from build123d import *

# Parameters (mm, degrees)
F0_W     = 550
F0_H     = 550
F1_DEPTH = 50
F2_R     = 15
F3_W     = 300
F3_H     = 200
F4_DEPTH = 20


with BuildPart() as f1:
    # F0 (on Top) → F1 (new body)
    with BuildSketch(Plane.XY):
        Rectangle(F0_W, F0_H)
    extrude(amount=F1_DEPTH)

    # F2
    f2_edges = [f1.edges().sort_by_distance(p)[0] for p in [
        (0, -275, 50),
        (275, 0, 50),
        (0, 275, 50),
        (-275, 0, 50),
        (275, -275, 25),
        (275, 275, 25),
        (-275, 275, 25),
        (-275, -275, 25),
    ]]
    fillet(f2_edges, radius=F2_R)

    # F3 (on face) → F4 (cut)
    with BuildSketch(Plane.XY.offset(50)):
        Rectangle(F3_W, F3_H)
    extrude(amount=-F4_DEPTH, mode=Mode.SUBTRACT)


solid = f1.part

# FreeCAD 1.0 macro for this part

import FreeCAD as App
import Part
import Sketcher
from FreeCAD import Vector
Q = App.Units.Quantity


def edges_at(feature, points):
    """Names of the edges that pass closest to the given points."""
    edges = feature.Shape.Edges
    near = lambda p: min(range(len(edges)), key=lambda i: edges[i].distToShape(Part.Vertex(*p))[0])
    return sorted({f"Edge{near(p) + 1}" for p in points})

doc = App.newDocument("Part")
body = doc.addObject("PartDesign::Body", "Body")

# Sketch on XY plane
sketch1 = body.newObject("Sketcher::SketchObject", "Sketch")
sketch1.AttachmentSupport = (doc.getObject("XY_Plane"), [""])
sketch1.MapMode = "FlatFace"
sketch1.addGeometry(Part.LineSegment(Vector(-275, 275, 0), Vector(-275, -275, 0)), False)
sketch1.addGeometry(Part.LineSegment(Vector(-275, -275, 0), Vector(275, -275, 0)), False)
sketch1.addGeometry(Part.LineSegment(Vector(275, -275, 0), Vector(275, 275, 0)), False)
sketch1.addGeometry(Part.LineSegment(Vector(275, 275, 0), Vector(-275, 275, 0)), False)
sketch1.addConstraint(Sketcher.Constraint("Coincident", 0, 2, 1, 1))
sketch1.addConstraint(Sketcher.Constraint("Coincident", 1, 2, 2, 1))
sketch1.addConstraint(Sketcher.Constraint("Coincident", 2, 2, 3, 1))
sketch1.addConstraint(Sketcher.Constraint("Coincident", 3, 2, 0, 1))
sketch1.addConstraint(Sketcher.Constraint("Vertical", 0))
sketch1.addConstraint(Sketcher.Constraint("Horizontal", 1))
sketch1.addConstraint(Sketcher.Constraint("Vertical", 2))
sketch1.addConstraint(Sketcher.Constraint("Horizontal", 3))
sketch1.addConstraint(Sketcher.Constraint("Symmetric", 0, 2, 2, 2, -1, 1))
sketch1.addConstraint(Sketcher.Constraint("Equal", 3, 0))
sketch1.addConstraint(Sketcher.Constraint("DistanceX", 1, 1, 1, 2, Q("550 mm")))
pad1 = body.newObject("PartDesign::Pad", "Pad")
pad1.Profile = sketch1
pad1.Length = 50
doc.recompute()

fillet = body.newObject("PartDesign::Fillet", "Fillet")
fillet.Base = (pad1, edges_at(pad1, [
    (0, -275, 50),
    (275, 0, 50),
    (0, 275, 50),
    (-275, 0, 50),
    (275, -275, 25),
    (275, 275, 25),
    (-275, 275, 25),
    (-275, -275, 25),
]))
fillet.Radius = 15

# Sketch on XY plane
sketch2 = body.newObject("Sketcher::SketchObject", "Sketch001")
sketch2.AttachmentSupport = (doc.getObject("XY_Plane"), [""])
sketch2.MapMode = "FlatFace"
sketch2.AttachmentOffset = App.Placement(Vector(0, 0, 50), App.Rotation())
sketch2.addGeometry(Part.LineSegment(Vector(-150, 100, 0), Vector(-150, -100, 0)), False)
sketch2.addGeometry(Part.LineSegment(Vector(-150, -100, 0), Vector(150, -100, 0)), False)
sketch2.addGeometry(Part.LineSegment(Vector(150, -100, 0), Vector(150, 100, 0)), False)
sketch2.addGeometry(Part.LineSegment(Vector(150, 100, 0), Vector(-150, 100, 0)), False)
sketch2.addConstraint(Sketcher.Constraint("Coincident", 0, 2, 1, 1))
sketch2.addConstraint(Sketcher.Constraint("Coincident", 1, 2, 2, 1))
sketch2.addConstraint(Sketcher.Constraint("Coincident", 2, 2, 3, 1))
sketch2.addConstraint(Sketcher.Constraint("Coincident", 3, 2, 0, 1))
sketch2.addConstraint(Sketcher.Constraint("Vertical", 0))
sketch2.addConstraint(Sketcher.Constraint("Horizontal", 1))
sketch2.addConstraint(Sketcher.Constraint("Vertical", 2))
sketch2.addConstraint(Sketcher.Constraint("Horizontal", 3))
sketch2.addConstraint(Sketcher.Constraint("Symmetric", 0, 2, 2, 2, -1, 1))
sketch2.addConstraint(Sketcher.Constraint("DistanceX", 1, 1, 1, 2, Q("300 mm")))
sketch2.addConstraint(Sketcher.Constraint("DistanceY", 0, 2, 0, 1, Q("200 mm")))
pocket1 = body.newObject("PartDesign::Pocket", "Pocket")
pocket1.Profile = sketch2
pocket1.Length = 20

doc.recompute()
